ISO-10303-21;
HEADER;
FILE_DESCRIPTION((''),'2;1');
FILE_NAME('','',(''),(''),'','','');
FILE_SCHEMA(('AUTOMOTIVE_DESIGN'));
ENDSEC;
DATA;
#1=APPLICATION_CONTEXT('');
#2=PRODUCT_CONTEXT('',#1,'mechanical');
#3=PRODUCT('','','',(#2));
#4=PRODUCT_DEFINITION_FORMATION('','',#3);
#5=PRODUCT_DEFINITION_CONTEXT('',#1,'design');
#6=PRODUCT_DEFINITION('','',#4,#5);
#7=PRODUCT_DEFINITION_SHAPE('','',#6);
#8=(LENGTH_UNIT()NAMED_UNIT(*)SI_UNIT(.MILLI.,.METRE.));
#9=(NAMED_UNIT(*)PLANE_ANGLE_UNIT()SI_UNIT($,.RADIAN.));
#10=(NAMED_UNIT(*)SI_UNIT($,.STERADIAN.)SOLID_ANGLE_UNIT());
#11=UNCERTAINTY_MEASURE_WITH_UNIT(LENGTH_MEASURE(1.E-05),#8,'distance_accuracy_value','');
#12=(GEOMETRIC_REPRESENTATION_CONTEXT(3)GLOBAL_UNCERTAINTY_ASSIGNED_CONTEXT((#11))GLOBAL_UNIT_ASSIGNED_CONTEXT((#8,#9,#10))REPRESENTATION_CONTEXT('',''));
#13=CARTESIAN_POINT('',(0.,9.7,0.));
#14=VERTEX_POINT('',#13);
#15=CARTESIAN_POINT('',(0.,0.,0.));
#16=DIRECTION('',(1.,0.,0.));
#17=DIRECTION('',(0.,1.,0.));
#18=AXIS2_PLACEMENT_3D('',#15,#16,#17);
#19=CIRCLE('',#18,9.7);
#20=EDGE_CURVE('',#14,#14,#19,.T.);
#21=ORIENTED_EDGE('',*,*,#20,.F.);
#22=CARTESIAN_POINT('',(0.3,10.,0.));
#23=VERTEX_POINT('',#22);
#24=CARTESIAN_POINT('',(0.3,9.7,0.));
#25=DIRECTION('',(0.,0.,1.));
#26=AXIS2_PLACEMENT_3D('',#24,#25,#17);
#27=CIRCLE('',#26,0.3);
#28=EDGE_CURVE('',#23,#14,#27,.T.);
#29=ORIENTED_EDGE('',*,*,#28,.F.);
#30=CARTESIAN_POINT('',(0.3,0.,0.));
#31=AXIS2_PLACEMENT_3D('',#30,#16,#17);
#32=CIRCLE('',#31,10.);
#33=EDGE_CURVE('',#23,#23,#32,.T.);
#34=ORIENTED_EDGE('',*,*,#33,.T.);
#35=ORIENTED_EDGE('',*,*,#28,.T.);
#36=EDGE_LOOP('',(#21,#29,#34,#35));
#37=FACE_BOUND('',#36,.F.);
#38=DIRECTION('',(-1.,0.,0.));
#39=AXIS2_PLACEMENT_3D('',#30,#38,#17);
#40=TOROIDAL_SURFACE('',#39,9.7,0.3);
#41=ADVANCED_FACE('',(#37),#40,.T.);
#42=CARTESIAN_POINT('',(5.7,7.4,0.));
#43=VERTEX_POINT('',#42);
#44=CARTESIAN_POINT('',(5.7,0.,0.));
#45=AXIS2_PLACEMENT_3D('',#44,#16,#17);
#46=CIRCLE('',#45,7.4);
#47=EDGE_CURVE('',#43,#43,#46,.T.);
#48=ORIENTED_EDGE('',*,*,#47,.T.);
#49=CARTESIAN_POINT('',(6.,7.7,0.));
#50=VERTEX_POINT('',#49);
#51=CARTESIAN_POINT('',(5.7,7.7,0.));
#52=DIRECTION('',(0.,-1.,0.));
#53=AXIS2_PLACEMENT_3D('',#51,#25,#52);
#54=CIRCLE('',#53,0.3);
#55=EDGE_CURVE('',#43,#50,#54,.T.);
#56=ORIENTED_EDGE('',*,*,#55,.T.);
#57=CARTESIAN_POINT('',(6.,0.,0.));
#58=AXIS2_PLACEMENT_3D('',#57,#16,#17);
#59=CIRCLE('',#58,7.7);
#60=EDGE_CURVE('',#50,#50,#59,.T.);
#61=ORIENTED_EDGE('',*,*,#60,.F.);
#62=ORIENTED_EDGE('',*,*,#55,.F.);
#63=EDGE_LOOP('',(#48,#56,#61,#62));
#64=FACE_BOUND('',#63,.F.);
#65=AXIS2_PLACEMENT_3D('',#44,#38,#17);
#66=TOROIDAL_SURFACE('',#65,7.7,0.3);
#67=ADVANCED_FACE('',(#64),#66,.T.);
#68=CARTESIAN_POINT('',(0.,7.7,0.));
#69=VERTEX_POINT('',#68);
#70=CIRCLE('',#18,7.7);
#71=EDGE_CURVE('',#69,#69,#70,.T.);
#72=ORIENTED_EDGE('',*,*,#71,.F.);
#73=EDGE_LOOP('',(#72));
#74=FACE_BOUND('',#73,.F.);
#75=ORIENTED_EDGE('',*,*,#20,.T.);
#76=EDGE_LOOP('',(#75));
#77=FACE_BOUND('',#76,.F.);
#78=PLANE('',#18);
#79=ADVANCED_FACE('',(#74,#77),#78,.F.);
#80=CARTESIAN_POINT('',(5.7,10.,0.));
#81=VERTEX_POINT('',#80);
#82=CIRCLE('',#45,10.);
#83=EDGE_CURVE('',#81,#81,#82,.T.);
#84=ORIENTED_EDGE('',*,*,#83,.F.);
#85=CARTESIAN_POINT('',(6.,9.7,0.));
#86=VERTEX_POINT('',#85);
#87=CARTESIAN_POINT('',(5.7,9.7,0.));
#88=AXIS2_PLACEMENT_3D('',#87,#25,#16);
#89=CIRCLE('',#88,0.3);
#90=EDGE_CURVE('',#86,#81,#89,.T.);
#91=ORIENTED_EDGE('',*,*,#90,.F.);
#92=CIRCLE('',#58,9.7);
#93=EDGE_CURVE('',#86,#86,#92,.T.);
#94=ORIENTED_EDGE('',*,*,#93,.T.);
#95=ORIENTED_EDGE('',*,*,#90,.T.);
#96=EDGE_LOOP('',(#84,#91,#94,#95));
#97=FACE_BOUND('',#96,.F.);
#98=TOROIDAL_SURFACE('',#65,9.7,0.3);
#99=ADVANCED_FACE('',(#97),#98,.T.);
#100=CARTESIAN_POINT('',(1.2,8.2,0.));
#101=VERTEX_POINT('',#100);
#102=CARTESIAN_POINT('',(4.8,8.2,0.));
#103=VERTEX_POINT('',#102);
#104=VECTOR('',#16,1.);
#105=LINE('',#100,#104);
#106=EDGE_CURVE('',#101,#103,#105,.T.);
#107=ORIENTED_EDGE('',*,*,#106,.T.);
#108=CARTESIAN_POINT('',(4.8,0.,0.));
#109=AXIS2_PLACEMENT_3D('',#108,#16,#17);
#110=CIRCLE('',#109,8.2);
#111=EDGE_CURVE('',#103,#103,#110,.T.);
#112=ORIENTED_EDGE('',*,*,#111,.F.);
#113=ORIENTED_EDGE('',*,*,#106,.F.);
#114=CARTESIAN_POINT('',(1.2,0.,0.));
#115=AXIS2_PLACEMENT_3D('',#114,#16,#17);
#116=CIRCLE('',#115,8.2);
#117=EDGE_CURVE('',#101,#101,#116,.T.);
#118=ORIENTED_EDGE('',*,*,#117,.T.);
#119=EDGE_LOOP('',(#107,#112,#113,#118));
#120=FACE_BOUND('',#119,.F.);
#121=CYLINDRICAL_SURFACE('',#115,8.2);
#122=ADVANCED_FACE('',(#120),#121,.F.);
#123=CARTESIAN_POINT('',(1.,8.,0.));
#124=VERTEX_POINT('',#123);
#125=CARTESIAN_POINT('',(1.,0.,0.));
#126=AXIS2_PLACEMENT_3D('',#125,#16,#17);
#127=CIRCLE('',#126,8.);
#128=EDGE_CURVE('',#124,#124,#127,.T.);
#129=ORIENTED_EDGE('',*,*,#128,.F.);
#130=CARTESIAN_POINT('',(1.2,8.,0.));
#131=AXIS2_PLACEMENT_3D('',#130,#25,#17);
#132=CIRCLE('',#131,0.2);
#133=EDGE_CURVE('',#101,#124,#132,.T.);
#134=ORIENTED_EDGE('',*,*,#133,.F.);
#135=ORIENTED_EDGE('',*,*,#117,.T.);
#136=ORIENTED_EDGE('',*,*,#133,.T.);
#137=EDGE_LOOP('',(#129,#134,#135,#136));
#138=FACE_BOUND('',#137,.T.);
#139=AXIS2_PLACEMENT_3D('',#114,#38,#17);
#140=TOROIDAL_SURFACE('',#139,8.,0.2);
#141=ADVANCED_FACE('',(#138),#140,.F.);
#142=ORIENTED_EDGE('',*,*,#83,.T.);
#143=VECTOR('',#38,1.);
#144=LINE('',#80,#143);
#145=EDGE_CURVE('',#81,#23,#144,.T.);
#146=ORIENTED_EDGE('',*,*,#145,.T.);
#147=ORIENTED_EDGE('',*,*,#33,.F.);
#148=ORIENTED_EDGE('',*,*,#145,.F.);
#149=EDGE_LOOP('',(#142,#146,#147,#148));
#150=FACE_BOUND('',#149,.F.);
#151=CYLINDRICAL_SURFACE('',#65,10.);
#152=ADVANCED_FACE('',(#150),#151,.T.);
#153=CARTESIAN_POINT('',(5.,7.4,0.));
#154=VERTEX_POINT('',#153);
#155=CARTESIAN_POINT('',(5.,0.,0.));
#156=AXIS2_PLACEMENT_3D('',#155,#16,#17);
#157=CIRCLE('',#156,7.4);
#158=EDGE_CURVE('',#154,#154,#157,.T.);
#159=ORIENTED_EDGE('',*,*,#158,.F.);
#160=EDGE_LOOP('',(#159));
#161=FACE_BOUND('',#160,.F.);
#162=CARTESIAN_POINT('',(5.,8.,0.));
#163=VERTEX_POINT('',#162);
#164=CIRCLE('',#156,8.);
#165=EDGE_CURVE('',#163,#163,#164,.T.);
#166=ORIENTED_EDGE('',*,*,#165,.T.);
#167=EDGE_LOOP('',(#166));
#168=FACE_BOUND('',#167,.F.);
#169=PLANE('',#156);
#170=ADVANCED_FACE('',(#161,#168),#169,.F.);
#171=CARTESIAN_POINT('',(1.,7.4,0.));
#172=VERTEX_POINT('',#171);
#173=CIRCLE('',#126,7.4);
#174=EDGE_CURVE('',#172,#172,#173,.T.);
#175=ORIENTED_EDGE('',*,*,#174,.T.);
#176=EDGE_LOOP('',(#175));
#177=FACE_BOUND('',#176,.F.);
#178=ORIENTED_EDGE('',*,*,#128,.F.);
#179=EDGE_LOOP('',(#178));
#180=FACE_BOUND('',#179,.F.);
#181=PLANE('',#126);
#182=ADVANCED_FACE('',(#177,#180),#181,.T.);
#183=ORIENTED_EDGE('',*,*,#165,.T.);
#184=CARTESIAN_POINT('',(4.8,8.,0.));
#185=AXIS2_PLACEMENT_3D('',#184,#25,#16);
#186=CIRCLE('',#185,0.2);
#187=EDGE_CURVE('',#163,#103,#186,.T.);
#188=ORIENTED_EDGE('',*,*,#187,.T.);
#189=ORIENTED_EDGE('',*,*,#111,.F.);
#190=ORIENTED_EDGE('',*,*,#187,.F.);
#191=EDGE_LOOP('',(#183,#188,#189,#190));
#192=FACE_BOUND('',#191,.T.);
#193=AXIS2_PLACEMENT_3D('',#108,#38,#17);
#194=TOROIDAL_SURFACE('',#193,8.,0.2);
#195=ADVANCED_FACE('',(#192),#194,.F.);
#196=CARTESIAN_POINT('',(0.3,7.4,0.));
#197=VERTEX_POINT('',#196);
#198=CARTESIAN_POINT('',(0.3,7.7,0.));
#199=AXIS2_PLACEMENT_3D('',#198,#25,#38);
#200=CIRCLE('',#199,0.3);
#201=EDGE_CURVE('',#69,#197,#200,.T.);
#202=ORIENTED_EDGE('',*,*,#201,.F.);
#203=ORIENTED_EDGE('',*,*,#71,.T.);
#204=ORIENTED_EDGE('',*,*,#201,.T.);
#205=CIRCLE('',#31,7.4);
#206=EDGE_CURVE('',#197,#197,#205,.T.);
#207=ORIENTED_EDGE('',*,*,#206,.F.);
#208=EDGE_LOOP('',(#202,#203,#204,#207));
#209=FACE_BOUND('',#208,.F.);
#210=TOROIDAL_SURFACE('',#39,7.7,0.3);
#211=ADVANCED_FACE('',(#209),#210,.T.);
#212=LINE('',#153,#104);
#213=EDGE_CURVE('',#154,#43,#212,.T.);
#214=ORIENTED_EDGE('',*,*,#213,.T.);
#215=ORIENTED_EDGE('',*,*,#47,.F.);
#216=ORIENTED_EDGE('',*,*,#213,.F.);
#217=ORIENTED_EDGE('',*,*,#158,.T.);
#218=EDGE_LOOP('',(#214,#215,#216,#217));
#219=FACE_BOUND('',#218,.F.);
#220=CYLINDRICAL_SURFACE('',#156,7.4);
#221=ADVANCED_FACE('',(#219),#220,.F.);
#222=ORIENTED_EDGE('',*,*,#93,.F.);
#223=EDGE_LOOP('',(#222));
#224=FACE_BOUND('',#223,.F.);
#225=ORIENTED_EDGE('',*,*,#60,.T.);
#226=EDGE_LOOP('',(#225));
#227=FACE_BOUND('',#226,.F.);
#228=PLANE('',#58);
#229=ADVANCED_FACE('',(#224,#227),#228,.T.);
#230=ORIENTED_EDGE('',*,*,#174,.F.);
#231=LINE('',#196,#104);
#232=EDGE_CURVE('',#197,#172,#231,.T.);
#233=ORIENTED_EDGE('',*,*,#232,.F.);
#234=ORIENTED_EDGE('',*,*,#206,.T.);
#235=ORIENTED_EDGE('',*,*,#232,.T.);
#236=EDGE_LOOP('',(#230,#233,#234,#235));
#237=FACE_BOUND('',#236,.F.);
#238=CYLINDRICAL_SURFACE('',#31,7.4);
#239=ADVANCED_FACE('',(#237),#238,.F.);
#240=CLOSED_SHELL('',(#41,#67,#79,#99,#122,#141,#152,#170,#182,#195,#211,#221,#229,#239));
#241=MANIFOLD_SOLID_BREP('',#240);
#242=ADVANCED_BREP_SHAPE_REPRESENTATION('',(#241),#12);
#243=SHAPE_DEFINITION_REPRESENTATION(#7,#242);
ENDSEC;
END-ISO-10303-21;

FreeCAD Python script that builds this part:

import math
import FreeCAD as App
import Part
import Sketcher
Q = App.Units.Quantity

doc = App.newDocument("Part")
body = doc.addObject("PartDesign::Body", "Body")

sketch1 = doc.addObject("Sketcher::SketchObject", "Sketch")
body.addObject(sketch1)
sketch1.AttachmentSupport = (doc.XY_Plane, [""])
sketch1.MapMode = "FlatFace"
sketch1.addGeometry(Part.LineSegment(App.Vector(0, 9.7, 0), App.Vector(0, 7.7, 0)), False)
sketch1.addGeometry(Part.ArcOfCircle(Part.Circle(App.Vector(0.3, 7.7, 0), App.Vector(0, 0, 1), 0.3), math.radians(180), math.radians(270)), False)
sketch1.addGeometry(Part.LineSegment(App.Vector(0.3, 7.4, 0), App.Vector(1, 7.4, 0)), False)
sketch1.addGeometry(Part.LineSegment(App.Vector(1, 7.4, 0), App.Vector(1, 8, 0)), False)
sketch1.addGeometry(Part.ArcOfCircle(Part.Circle(App.Vector(1.2, 8, 0), App.Vector(0, 0, 1), 0.2), math.radians(90), math.radians(180)), False)
sketch1.addGeometry(Part.LineSegment(App.Vector(1.2, 8.2, 0), App.Vector(4.8, 8.2, 0)), False)
sketch1.addGeometry(Part.ArcOfCircle(Part.Circle(App.Vector(4.8, 8, 0), App.Vector(0, 0, 1), 0.2), math.radians(0), math.radians(90)), False)
sketch1.addGeometry(Part.LineSegment(App.Vector(5, 8, 0), App.Vector(5, 7.4, 0)), False)
sketch1.addGeometry(Part.LineSegment(App.Vector(5, 7.4, 0), App.Vector(5.7, 7.4, 0)), False)
sketch1.addGeometry(Part.ArcOfCircle(Part.Circle(App.Vector(5.7, 7.7, 0), App.Vector(0, 0, 1), 0.3), math.radians(-90), math.radians(0)), False)
sketch1.addGeometry(Part.LineSegment(App.Vector(6, 7.7, 0), App.Vector(6, 9.7, 0)), False)
sketch1.addGeometry(Part.ArcOfCircle(Part.Circle(App.Vector(5.7, 9.7, 0), App.Vector(0, 0, 1), 0.3), math.radians(0), math.radians(90)), False)
sketch1.addGeometry(Part.LineSegment(App.Vector(5.7, 10, 0), App.Vector(0.3, 10, 0)), False)
sketch1.addGeometry(Part.ArcOfCircle(Part.Circle(App.Vector(0.3, 9.7, 0), App.Vector(0, 0, 1), 0.3), math.radians(90), math.radians(180)), False)
sketch1.addConstraint(Sketcher.Constraint("Tangent", 0, 2, 1, 1))
sketch1.addConstraint(Sketcher.Constraint("Tangent", 1, 2, 2, 1))
sketch1.addConstraint(Sketcher.Constraint("Coincident", 2, 2, 3, 1))
sketch1.addConstraint(Sketcher.Constraint("Tangent", 3, 2, 4, 2))
sketch1.addConstraint(Sketcher.Constraint("Tangent", 4, 1, 5, 1))
sketch1.addConstraint(Sketcher.Constraint("Tangent", 5, 2, 6, 2))
sketch1.addConstraint(Sketcher.Constraint("Tangent", 6, 1, 7, 1))
sketch1.addConstraint(Sketcher.Constraint("Coincident", 7, 2, 8, 1))
sketch1.addConstraint(Sketcher.Constraint("Tangent", 8, 2, 9, 1))
sketch1.addConstraint(Sketcher.Constraint("Tangent", 9, 2, 10, 1))
sketch1.addConstraint(Sketcher.Constraint("Tangent", 10, 2, 11, 1))
sketch1.addConstraint(Sketcher.Constraint("Tangent", 11, 2, 12, 1))
sketch1.addConstraint(Sketcher.Constraint("Tangent", 12, 2, 13, 1))
sketch1.addConstraint(Sketcher.Constraint("Tangent", 13, 2, 0, 1))
sketch1.addConstraint(Sketcher.Constraint("Vertical", 0))
sketch1.addConstraint(Sketcher.Constraint("Horizontal", 2))
sketch1.addConstraint(Sketcher.Constraint("Vertical", 3))
sketch1.addConstraint(Sketcher.Constraint("Horizontal", 5))
sketch1.addConstraint(Sketcher.Constraint("Vertical", 7))
sketch1.addConstraint(Sketcher.Constraint("Horizontal", 8))
sketch1.addConstraint(Sketcher.Constraint("Vertical", 10))
sketch1.addConstraint(Sketcher.Constraint("Horizontal", 12))
sketch1.addConstraint(Sketcher.Constraint("Equal", 4, 6))
sketch1.addConstraint(Sketcher.Constraint("Equal", 1, 9))
sketch1.addConstraint(Sketcher.Constraint("Equal", 9, 11))
sketch1.addConstraint(Sketcher.Constraint("Equal", 11, 13))
sketch1.addConstraint(Sketcher.Constraint("PointOnObject", 0, 2, -2))
sketch1.addConstraint(Sketcher.Constraint("Horizontal", 1, 3, 9, 3))
sketch1.addConstraint(Sketcher.Constraint("Equal", 2, 8))
sketch1.addConstraint(Sketcher.Constraint("Radius", 1, Q("0.3 mm")))
sketch1.addConstraint(Sketcher.Constraint("Radius", 4, Q("0.2 mm")))
sketch1.addConstraint(Sketcher.Constraint("DistanceY", 0, 2, 0, 1, Q("2 mm")))
sketch1.addConstraint(Sketcher.Constraint("DistanceX", 2, 1, 2, 2, Q("0.7 mm")))
sketch1.addConstraint(Sketcher.Constraint("DistanceX", 5, 1, 5, 2, Q("3.6 mm")))
sketch1.addConstraint(Sketcher.Constraint("DistanceY", 3, 1, 3, 2, Q("0.6 mm")))
sketch1.addConstraint(Sketcher.Constraint("DistanceY", -1, 1, 4, 3, Q("8 mm")))
revolution = doc.addObject("PartDesign::Revolution", "Revolution")
body.addObject(revolution)
revolution.Profile = sketch1
revolution.ReferenceAxis = (sketch1, ["H_Axis"])
revolution.Angle = 360

doc.recompute()
